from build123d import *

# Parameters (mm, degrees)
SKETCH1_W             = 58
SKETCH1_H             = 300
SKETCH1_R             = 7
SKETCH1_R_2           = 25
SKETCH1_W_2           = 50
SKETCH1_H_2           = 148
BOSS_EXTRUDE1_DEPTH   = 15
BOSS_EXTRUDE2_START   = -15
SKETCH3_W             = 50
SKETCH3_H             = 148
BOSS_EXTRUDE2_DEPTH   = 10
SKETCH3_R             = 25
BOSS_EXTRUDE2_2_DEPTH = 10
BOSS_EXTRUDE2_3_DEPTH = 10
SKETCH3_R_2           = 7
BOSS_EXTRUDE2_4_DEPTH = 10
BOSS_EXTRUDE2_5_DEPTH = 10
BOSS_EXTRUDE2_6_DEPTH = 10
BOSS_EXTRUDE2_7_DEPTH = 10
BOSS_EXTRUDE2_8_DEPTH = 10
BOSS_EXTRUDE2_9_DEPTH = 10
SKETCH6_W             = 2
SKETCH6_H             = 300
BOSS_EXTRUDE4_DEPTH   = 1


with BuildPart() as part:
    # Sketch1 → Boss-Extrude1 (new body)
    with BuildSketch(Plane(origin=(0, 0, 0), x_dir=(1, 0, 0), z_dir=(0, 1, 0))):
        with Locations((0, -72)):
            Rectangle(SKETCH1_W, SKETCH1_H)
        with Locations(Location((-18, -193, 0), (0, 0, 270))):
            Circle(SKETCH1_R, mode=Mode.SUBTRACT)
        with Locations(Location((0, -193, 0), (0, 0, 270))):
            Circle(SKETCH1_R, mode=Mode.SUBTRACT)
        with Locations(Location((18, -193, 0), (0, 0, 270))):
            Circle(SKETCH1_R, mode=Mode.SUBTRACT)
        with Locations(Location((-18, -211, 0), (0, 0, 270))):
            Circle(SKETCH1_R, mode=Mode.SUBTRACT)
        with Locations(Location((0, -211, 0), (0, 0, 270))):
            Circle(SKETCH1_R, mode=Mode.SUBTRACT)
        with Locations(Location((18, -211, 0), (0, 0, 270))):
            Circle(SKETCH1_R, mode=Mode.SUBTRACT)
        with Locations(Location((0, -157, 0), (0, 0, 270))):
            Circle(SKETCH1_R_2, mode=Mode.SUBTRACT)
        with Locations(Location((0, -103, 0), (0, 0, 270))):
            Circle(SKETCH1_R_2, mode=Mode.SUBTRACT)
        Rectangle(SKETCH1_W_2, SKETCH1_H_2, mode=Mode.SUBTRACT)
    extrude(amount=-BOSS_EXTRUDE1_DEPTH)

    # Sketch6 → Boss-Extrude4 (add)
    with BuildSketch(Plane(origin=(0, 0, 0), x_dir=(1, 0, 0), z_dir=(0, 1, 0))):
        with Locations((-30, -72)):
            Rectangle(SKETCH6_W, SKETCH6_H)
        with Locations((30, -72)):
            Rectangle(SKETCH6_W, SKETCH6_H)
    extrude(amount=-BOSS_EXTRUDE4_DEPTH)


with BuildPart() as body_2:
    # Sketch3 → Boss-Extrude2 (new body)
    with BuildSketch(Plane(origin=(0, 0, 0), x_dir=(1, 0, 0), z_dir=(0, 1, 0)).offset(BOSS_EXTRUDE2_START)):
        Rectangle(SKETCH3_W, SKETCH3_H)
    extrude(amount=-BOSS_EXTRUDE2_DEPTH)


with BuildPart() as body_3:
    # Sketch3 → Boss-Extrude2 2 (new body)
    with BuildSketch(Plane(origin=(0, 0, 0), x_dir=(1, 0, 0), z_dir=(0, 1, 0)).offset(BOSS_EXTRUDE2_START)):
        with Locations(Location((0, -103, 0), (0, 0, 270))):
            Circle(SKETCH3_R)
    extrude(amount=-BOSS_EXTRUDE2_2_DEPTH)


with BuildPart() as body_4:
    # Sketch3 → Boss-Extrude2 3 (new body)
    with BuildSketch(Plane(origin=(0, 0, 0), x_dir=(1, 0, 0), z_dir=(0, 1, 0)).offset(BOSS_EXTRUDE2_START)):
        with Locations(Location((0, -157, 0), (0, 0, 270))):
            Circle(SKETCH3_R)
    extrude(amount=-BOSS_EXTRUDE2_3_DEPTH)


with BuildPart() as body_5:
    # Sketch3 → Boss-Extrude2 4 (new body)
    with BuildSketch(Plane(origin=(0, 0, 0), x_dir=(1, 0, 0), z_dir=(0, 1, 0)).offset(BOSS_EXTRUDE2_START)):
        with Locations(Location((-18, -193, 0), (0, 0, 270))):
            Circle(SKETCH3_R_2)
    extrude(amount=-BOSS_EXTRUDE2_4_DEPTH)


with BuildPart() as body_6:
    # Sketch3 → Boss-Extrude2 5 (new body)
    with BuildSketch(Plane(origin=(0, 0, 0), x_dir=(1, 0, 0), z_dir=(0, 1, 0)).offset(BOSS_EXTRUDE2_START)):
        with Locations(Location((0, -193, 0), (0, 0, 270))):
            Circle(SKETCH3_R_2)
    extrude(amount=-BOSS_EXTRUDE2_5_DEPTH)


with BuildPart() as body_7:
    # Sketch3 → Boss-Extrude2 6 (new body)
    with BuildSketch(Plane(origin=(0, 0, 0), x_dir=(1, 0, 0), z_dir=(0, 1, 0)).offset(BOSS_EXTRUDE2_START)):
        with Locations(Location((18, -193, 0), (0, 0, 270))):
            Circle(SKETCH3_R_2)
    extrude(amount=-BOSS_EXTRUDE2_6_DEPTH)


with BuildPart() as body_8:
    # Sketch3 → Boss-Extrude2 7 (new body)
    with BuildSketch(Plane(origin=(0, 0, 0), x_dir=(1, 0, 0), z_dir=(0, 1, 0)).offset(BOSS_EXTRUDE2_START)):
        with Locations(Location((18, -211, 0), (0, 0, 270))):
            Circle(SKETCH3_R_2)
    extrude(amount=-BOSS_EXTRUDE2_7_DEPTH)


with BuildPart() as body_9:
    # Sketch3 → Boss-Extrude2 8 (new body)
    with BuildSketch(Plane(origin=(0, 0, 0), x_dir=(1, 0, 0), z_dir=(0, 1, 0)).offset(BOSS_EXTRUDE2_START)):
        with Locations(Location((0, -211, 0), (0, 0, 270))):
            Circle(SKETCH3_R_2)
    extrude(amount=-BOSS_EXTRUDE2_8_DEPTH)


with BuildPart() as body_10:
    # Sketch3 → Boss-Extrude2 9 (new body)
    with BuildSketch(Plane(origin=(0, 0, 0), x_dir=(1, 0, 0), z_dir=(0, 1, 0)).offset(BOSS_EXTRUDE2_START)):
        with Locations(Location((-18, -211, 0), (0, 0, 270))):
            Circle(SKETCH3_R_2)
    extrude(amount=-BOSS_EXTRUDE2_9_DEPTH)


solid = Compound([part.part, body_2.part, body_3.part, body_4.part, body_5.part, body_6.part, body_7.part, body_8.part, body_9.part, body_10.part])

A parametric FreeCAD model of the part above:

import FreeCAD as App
import Part
import Sketcher

V = App.Vector


def add_polygon(sketch, points):
    """Adds a closed chain of lines whose ends are joined by coincident constraints."""
    first, n = sketch.GeometryCount, len(points)
    for a, b in zip(points, points[1:] + points[:1]):
        sketch.addGeometry(Part.LineSegment(App.Vector(*a, 0), App.Vector(*b, 0)), False)
    for i in range(n):
        sketch.addConstraint(Sketcher.Constraint("Coincident", first + i, 2, first + (i + 1) % n, 1))

doc = App.newDocument("Part")
params = doc.addObject("Spreadsheet::Sheet", "Params")
for row, (alias, value) in enumerate([
    ("sketch1_diameter", "14 mm"),
    ("sketch1_diameter2", "50 mm"),
    ("sketch1_width", "58 mm"),
    ("sketch1_width2", "50 mm"),
    ("sketch1_height", "300 mm"),
    ("pad1_length", "15 mm"),
    ("sketch2_width", "2 mm"),
    ("sketch2_height", "300 mm"),
    ("pad2_length", "1 mm"),
    ("sketch3_width", "50 mm"),
    ("sketch3_height", "148 mm"),
    ("pad3_length", "10 mm"),
    ("sketch4_diameter", "50 mm"),
    ("pad4_length", "10 mm"),
    ("sketch5_diameter", "50 mm"),
    ("pad5_length", "10 mm"),
    ("sketch6_diameter", "14 mm"),
    ("pad6_length", "10 mm"),
    ("sketch7_diameter", "14 mm"),
    ("pad7_length", "10 mm"),
    ("sketch8_diameter", "14 mm"),
    ("pad8_length", "10 mm"),
    ("sketch9_diameter", "14 mm"),
    ("pad9_length", "10 mm"),
    ("sketch10_diameter", "14 mm"),
    ("pad10_length", "10 mm"),
    ("sketch11_diameter", "14 mm"),
    ("pad11_length", "10 mm"),
], start=1):
    params.set(f"A{row}", alias)
    params.set(f"B{row}", "=" + value)
    params.setAlias(f"B{row}", alias)

body = doc.addObject("PartDesign::Body", "Body")

sketch1 = body.newObject("Sketcher::SketchObject", "Sketch")
sketch1.AttachmentSupport = (doc.getObject("XZ_Plane"), [""])
sketch1.MapMode = "FlatFace"
add_polygon(sketch1, [(-29, -78), (-29, 222), (29, 222), (29, -78)])
sketch1.addGeometry(Part.Circle(V(-18, 211, 0), V(0, 0, 1), 7), False)
sketch1.addGeometry(Part.Circle(V(-18, 193, 0), V(0, 0, 1), 7), False)
sketch1.addGeometry(Part.Circle(V(0, 211, 0), V(0, 0, 1), 7), False)
sketch1.addGeometry(Part.Circle(V(0, 193, 0), V(0, 0, 1), 7), False)
sketch1.addGeometry(Part.Circle(V(0, 157, 0), V(0, 0, 1), 25), False)
sketch1.addGeometry(Part.Circle(V(18, 211, 0), V(0, 0, 1), 7), False)
sketch1.addGeometry(Part.Circle(V(18, 193, 0), V(0, 0, 1), 7), False)
sketch1.addGeometry(Part.Circle(V(0, 103, 0), V(0, 0, 1), 25), False)
add_polygon(sketch1, [(25, 74), (-25, 74), (-25, -74), (25, -74)])
sketch1.addConstraint([
    Sketcher.Constraint("Vertical", 0),
    Sketcher.Constraint("Horizontal", 1),
    Sketcher.Constraint("Vertical", 2),
    Sketcher.Constraint("Horizontal", 3),
    Sketcher.Constraint("Horizontal", 12),
    Sketcher.Constraint("Vertical", 13),
    Sketcher.Constraint("Horizontal", 14),
    Sketcher.Constraint("Vertical", 15),
    Sketcher.Constraint("Equal", 4, 5),
    Sketcher.Constraint("Equal", 5, 6),
    Sketcher.Constraint("Equal", 6, 7),
    Sketcher.Constraint("Equal", 7, 9),
    Sketcher.Constraint("Equal", 9, 10),
    Sketcher.Constraint("Equal", 8, 11),
    Sketcher.Constraint("Symmetric", 12, 2, 14, 2, -1, 1),
    Sketcher.Constraint("Symmetric", 4, 3, 9, 3, -2),
    Sketcher.Constraint("Symmetric", 5, 3, 10, 3, -2),
    Sketcher.Constraint("PointOnObject", 6, 3, -2),
    Sketcher.Constraint("PointOnObject", 7, 3, -2),
    Sketcher.Constraint("PointOnObject", 8, 3, -2),
    Sketcher.Constraint("PointOnObject", 11, 3, -2),
    Sketcher.Constraint("Horizontal", 4, 3, 6, 3),
    Sketcher.Constraint("Horizontal", 5, 3, 7, 3),
    Sketcher.Constraint("Vertical", 4, 3, 5, 3),
    Sketcher.Constraint("Diameter", 4, 14.0),
    Sketcher.Constraint("Diameter", 8, 50.0),
    Sketcher.Constraint("DistanceX", 1, 1, 1, 2, 58.0),
    Sketcher.Constraint("DistanceX", 12, 2, 12, 1, 50.0),
    Sketcher.Constraint("DistanceY", 0, 1, 0, 2, 300.0),
    Sketcher.Constraint("DistanceY", 13, 2, 13, 1, 148.0),
    Sketcher.Constraint("DistanceX", 4, 3, -1, 1, 18.0),
    Sketcher.Constraint("DistanceY", -1, 1, 4, 3, 211.0),
    Sketcher.Constraint("DistanceY", -1, 1, 5, 3, 193.0),
    Sketcher.Constraint("DistanceY", -1, 1, 8, 3, 157.0),
    Sketcher.Constraint("DistanceY", -1, 1, 11, 3, 103.0),
    Sketcher.Constraint("DistanceX", 0, 2, -1, 1, 29.0),
    Sketcher.Constraint("DistanceY", -1, 1, 0, 2, 222.0),
])
sketch1.setExpression("Constraints[32]", "Params.sketch1_diameter")
sketch1.setExpression("Constraints[33]", "Params.sketch1_diameter2")
sketch1.setExpression("Constraints[34]", "Params.sketch1_width")
sketch1.setExpression("Constraints[35]", "Params.sketch1_width2")
sketch1.setExpression("Constraints[36]", "Params.sketch1_height")
pad1 = body.newObject("PartDesign::Pad", "Pad")
pad1.Profile = sketch1
pad1.setExpression("Length", "Params.pad1_length")

sketch2 = body.newObject("Sketcher::SketchObject", "Sketch001")
sketch2.AttachmentSupport = (doc.getObject("XZ_Plane"), [""])
sketch2.MapMode = "FlatFace"
add_polygon(sketch2, [(-31, -78), (-31, 222), (-29, 222), (-29, -78)])
add_polygon(sketch2, [(29, -78), (29, 222), (31, 222), (31, -78)])
sketch2.addConstraint([
    Sketcher.Constraint("Vertical", 0),
    Sketcher.Constraint("Horizontal", 1),
    Sketcher.Constraint("Vertical", 2),
    Sketcher.Constraint("Horizontal", 3),
    Sketcher.Constraint("Vertical", 4),
    Sketcher.Constraint("Horizontal", 5),
    Sketcher.Constraint("Vertical", 6),
    Sketcher.Constraint("Horizontal", 7),
    Sketcher.Constraint("Symmetric", 1, 2, 4, 2, -2),
    Sketcher.Constraint("Symmetric", 3, 2, 6, 2, -2),
    Sketcher.Constraint("DistanceX", 1, 1, 1, 2, 2.0),
    Sketcher.Constraint("DistanceY", 0, 1, 0, 2, 300.0),
    Sketcher.Constraint("DistanceX", 0, 2, -1, 1, 31.0),
    Sketcher.Constraint("DistanceY", -1, 1, 0, 2, 222.0),
])
sketch2.setExpression("Constraints[18]", "Params.sketch2_width")
sketch2.setExpression("Constraints[19]", "Params.sketch2_height")
pad2 = body.newObject("PartDesign::Pad", "Pad001")
pad2.Profile = sketch2
pad2.setExpression("Length", "Params.pad2_length")
body2 = doc.addObject("PartDesign::Body", "Body001")

sketch3 = body2.newObject("Sketcher::SketchObject", "Sketch002")
sketch3.AttachmentSupport = (doc.getObject("XZ_Plane001"), [""])
sketch3.MapMode = "FlatFace"
sketch3.AttachmentOffset = App.Placement(V(0, 0, 15), App.Rotation())
add_polygon(sketch3, [(-25, -74), (-25, 74), (25, 74), (25, -74)])
sketch3.addConstraint([
    Sketcher.Constraint("Vertical", 0),
    Sketcher.Constraint("Horizontal", 1),
    Sketcher.Constraint("Vertical", 2),
    Sketcher.Constraint("Horizontal", 3),
    Sketcher.Constraint("Symmetric", 0, 2, 2, 2, -1, 1),
    Sketcher.Constraint("DistanceX", 1, 1, 1, 2, 50.0),
    Sketcher.Constraint("DistanceY", 0, 1, 0, 2, 148.0),
])
sketch3.setExpression("Constraints[9]", "Params.sketch3_width")
sketch3.setExpression("Constraints[10]", "Params.sketch3_height")
pad3 = body2.newObject("PartDesign::Pad", "Pad002")
pad3.Profile = sketch3
pad3.setExpression("Length", "Params.pad3_length")
body3 = doc.addObject("PartDesign::Body", "Body002")

sketch4 = body3.newObject("Sketcher::SketchObject", "Sketch003")
sketch4.AttachmentSupport = (doc.getObject("XZ_Plane002"), [""])
sketch4.MapMode = "FlatFace"
sketch4.AttachmentOffset = App.Placement(V(0, 0, 15), App.Rotation())
sketch4.addGeometry(Part.Circle(V(0, 103, 0), V(0, 0, 1), 25), False)
sketch4.addConstraint([
    Sketcher.Constraint("PointOnObject", 0, 3, -2),
    Sketcher.Constraint("Diameter", 0, 50.0),
    Sketcher.Constraint("DistanceY", -1, 1, 0, 3, 103.0),
])
sketch4.setExpression("Constraints[1]", "Params.sketch4_diameter")
pad4 = body3.newObject("PartDesign::Pad", "Pad003")
pad4.Profile = sketch4
pad4.setExpression("Length", "Params.pad4_length")
body4 = doc.addObject("PartDesign::Body", "Body003")

sketch5 = body4.newObject("Sketcher::SketchObject", "Sketch004")
sketch5.AttachmentSupport = (doc.getObject("XZ_Plane003"), [""])
sketch5.MapMode = "FlatFace"
sketch5.AttachmentOffset = App.Placement(V(0, 0, 15), App.Rotation())
sketch5.addGeometry(Part.Circle(V(0, 157, 0), V(0, 0, 1), 25), False)
sketch5.addConstraint([
    Sketcher.Constraint("PointOnObject", 0, 3, -2),
    Sketcher.Constraint("Diameter", 0, 50.0),
    Sketcher.Constraint("DistanceY", -1, 1, 0, 3, 157.0),
])
sketch5.setExpression("Constraints[1]", "Params.sketch5_diameter")
pad5 = body4.newObject("PartDesign::Pad", "Pad004")
pad5.Profile = sketch5
pad5.setExpression("Length", "Params.pad5_length")
body5 = doc.addObject("PartDesign::Body", "Body004")

sketch6 = body5.newObject("Sketcher::SketchObject", "Sketch005")
sketch6.AttachmentSupport = (doc.getObject("XZ_Plane004"), [""])
sketch6.MapMode = "FlatFace"
sketch6.AttachmentOffset = App.Placement(V(0, 0, 15), App.Rotation())
sketch6.addGeometry(Part.Circle(V(-18, 193, 0), V(0, 0, 1), 7), False)
sketch6.addConstraint([
    Sketcher.Constraint("Diameter", 0, 14.0),
    Sketcher.Constraint("DistanceX", 0, 3, -1, 1, 18.0),
    Sketcher.Constraint("DistanceY", -1, 1, 0, 3, 193.0),
])
sketch6.setExpression("Constraints[0]", "Params.sketch6_diameter")
pad6 = body5.newObject("PartDesign::Pad", "Pad005")
pad6.Profile = sketch6
pad6.setExpression("Length", "Params.pad6_length")
body6 = doc.addObject("PartDesign::Body", "Body005")

sketch7 = body6.newObject("Sketcher::SketchObject", "Sketch006")
sketch7.AttachmentSupport = (doc.getObject("XZ_Plane005"), [""])
sketch7.MapMode = "FlatFace"
sketch7.AttachmentOffset = App.Placement(V(0, 0, 15), App.Rotation())
sketch7.addGeometry(Part.Circle(V(0, 193, 0), V(0, 0, 1), 7), False)
sketch7.addConstraint([
    Sketcher.Constraint("PointOnObject", 0, 3, -2),
    Sketcher.Constraint("Diameter", 0, 14.0),
    Sketcher.Constraint("DistanceY", -1, 1, 0, 3, 193.0),
])
sketch7.setExpression("Constraints[1]", "Params.sketch7_diameter")
pad7 = body6.newObject("PartDesign::Pad", "Pad006")
pad7.Profile = sketch7
pad7.setExpression("Length", "Params.pad7_length")
body7 = doc.addObject("PartDesign::Body", "Body006")

sketch8 = body7.newObject("Sketcher::SketchObject", "Sketch007")
sketch8.AttachmentSupport = (doc.getObject("XZ_Plane006"), [""])
sketch8.MapMode = "FlatFace"
sketch8.AttachmentOffset = App.Placement(V(0, 0, 15), App.Rotation())
sketch8.addGeometry(Part.Circle(V(18, 193, 0), V(0, 0, 1), 7), False)
sketch8.addConstraint([
    Sketcher.Constraint("Diameter", 0, 14.0),
    Sketcher.Constraint("DistanceX", -1, 1, 0, 3, 18.0),
    Sketcher.Constraint("DistanceY", -1, 1, 0, 3, 193.0),
])
sketch8.setExpression("Constraints[0]", "Params.sketch8_diameter")
pad8 = body7.newObject("PartDesign::Pad", "Pad007")
pad8.Profile = sketch8
pad8.setExpression("Length", "Params.pad8_length")
body8 = doc.addObject("PartDesign::Body", "Body007")

sketch9 = body8.newObject("Sketcher::SketchObject", "Sketch008")
sketch9.AttachmentSupport = (doc.getObject("XZ_Plane007"), [""])
sketch9.MapMode = "FlatFace"
sketch9.AttachmentOffset = App.Placement(V(0, 0, 15), App.Rotation())
sketch9.addGeometry(Part.Circle(V(18, 211, 0), V(0, 0, 1), 7), False)
sketch9.addConstraint([
    Sketcher.Constraint("Diameter", 0, 14.0),
    Sketcher.Constraint("DistanceX", -1, 1, 0, 3, 18.0),
    Sketcher.Constraint("DistanceY", -1, 1, 0, 3, 211.0),
])
sketch9.setExpression("Constraints[0]", "Params.sketch9_diameter")
pad9 = body8.newObject("PartDesign::Pad", "Pad008")
pad9.Profile = sketch9
pad9.setExpression("Length", "Params.pad9_length")
body9 = doc.addObject("PartDesign::Body", "Body008")

sketch10 = body9.newObject("Sketcher::SketchObject", "Sketch009")
sketch10.AttachmentSupport = (doc.getObject("XZ_Plane008"), [""])
sketch10.MapMode = "FlatFace"
sketch10.AttachmentOffset = App.Placement(V(0, 0, 15), App.Rotation())
sketch10.addGeometry(Part.Circle(V(0, 211, 0), V(0, 0, 1), 7), False)
sketch10.addConstraint([
    Sketcher.Constraint("PointOnObject", 0, 3, -2),
    Sketcher.Constraint("Diameter", 0, 14.0),
    Sketcher.Constraint("DistanceY", -1, 1, 0, 3, 211.0),
])
sketch10.setExpression("Constraints[1]", "Params.sketch10_diameter")
pad10 = body9.newObject("PartDesign::Pad", "Pad009")
pad10.Profile = sketch10
pad10.setExpression("Length", "Params.pad10_length")
body10 = doc.addObject("PartDesign::Body", "Body009")

sketch11 = body10.newObject("Sketcher::SketchObject", "Sketch010")
sketch11.AttachmentSupport = (doc.getObject("XZ_Plane009"), [""])
sketch11.MapMode = "FlatFace"
sketch11.AttachmentOffset = App.Placement(V(0, 0, 15), App.Rotation())
sketch11.addGeometry(Part.Circle(V(-18, 211, 0), V(0, 0, 1), 7), False)
sketch11.addConstraint([
    Sketcher.Constraint("Diameter", 0, 14.0),
    Sketcher.Constraint("DistanceX", 0, 3, -1, 1, 18.0),
    Sketcher.Constraint("DistanceY", -1, 1, 0, 3, 211.0),
])
sketch11.setExpression("Constraints[0]", "Params.sketch11_diameter")
pad11 = body10.newObject("PartDesign::Pad", "Pad010")
pad11.Profile = sketch11
pad11.setExpression("Length", "Params.pad11_length")

doc.recompute()
